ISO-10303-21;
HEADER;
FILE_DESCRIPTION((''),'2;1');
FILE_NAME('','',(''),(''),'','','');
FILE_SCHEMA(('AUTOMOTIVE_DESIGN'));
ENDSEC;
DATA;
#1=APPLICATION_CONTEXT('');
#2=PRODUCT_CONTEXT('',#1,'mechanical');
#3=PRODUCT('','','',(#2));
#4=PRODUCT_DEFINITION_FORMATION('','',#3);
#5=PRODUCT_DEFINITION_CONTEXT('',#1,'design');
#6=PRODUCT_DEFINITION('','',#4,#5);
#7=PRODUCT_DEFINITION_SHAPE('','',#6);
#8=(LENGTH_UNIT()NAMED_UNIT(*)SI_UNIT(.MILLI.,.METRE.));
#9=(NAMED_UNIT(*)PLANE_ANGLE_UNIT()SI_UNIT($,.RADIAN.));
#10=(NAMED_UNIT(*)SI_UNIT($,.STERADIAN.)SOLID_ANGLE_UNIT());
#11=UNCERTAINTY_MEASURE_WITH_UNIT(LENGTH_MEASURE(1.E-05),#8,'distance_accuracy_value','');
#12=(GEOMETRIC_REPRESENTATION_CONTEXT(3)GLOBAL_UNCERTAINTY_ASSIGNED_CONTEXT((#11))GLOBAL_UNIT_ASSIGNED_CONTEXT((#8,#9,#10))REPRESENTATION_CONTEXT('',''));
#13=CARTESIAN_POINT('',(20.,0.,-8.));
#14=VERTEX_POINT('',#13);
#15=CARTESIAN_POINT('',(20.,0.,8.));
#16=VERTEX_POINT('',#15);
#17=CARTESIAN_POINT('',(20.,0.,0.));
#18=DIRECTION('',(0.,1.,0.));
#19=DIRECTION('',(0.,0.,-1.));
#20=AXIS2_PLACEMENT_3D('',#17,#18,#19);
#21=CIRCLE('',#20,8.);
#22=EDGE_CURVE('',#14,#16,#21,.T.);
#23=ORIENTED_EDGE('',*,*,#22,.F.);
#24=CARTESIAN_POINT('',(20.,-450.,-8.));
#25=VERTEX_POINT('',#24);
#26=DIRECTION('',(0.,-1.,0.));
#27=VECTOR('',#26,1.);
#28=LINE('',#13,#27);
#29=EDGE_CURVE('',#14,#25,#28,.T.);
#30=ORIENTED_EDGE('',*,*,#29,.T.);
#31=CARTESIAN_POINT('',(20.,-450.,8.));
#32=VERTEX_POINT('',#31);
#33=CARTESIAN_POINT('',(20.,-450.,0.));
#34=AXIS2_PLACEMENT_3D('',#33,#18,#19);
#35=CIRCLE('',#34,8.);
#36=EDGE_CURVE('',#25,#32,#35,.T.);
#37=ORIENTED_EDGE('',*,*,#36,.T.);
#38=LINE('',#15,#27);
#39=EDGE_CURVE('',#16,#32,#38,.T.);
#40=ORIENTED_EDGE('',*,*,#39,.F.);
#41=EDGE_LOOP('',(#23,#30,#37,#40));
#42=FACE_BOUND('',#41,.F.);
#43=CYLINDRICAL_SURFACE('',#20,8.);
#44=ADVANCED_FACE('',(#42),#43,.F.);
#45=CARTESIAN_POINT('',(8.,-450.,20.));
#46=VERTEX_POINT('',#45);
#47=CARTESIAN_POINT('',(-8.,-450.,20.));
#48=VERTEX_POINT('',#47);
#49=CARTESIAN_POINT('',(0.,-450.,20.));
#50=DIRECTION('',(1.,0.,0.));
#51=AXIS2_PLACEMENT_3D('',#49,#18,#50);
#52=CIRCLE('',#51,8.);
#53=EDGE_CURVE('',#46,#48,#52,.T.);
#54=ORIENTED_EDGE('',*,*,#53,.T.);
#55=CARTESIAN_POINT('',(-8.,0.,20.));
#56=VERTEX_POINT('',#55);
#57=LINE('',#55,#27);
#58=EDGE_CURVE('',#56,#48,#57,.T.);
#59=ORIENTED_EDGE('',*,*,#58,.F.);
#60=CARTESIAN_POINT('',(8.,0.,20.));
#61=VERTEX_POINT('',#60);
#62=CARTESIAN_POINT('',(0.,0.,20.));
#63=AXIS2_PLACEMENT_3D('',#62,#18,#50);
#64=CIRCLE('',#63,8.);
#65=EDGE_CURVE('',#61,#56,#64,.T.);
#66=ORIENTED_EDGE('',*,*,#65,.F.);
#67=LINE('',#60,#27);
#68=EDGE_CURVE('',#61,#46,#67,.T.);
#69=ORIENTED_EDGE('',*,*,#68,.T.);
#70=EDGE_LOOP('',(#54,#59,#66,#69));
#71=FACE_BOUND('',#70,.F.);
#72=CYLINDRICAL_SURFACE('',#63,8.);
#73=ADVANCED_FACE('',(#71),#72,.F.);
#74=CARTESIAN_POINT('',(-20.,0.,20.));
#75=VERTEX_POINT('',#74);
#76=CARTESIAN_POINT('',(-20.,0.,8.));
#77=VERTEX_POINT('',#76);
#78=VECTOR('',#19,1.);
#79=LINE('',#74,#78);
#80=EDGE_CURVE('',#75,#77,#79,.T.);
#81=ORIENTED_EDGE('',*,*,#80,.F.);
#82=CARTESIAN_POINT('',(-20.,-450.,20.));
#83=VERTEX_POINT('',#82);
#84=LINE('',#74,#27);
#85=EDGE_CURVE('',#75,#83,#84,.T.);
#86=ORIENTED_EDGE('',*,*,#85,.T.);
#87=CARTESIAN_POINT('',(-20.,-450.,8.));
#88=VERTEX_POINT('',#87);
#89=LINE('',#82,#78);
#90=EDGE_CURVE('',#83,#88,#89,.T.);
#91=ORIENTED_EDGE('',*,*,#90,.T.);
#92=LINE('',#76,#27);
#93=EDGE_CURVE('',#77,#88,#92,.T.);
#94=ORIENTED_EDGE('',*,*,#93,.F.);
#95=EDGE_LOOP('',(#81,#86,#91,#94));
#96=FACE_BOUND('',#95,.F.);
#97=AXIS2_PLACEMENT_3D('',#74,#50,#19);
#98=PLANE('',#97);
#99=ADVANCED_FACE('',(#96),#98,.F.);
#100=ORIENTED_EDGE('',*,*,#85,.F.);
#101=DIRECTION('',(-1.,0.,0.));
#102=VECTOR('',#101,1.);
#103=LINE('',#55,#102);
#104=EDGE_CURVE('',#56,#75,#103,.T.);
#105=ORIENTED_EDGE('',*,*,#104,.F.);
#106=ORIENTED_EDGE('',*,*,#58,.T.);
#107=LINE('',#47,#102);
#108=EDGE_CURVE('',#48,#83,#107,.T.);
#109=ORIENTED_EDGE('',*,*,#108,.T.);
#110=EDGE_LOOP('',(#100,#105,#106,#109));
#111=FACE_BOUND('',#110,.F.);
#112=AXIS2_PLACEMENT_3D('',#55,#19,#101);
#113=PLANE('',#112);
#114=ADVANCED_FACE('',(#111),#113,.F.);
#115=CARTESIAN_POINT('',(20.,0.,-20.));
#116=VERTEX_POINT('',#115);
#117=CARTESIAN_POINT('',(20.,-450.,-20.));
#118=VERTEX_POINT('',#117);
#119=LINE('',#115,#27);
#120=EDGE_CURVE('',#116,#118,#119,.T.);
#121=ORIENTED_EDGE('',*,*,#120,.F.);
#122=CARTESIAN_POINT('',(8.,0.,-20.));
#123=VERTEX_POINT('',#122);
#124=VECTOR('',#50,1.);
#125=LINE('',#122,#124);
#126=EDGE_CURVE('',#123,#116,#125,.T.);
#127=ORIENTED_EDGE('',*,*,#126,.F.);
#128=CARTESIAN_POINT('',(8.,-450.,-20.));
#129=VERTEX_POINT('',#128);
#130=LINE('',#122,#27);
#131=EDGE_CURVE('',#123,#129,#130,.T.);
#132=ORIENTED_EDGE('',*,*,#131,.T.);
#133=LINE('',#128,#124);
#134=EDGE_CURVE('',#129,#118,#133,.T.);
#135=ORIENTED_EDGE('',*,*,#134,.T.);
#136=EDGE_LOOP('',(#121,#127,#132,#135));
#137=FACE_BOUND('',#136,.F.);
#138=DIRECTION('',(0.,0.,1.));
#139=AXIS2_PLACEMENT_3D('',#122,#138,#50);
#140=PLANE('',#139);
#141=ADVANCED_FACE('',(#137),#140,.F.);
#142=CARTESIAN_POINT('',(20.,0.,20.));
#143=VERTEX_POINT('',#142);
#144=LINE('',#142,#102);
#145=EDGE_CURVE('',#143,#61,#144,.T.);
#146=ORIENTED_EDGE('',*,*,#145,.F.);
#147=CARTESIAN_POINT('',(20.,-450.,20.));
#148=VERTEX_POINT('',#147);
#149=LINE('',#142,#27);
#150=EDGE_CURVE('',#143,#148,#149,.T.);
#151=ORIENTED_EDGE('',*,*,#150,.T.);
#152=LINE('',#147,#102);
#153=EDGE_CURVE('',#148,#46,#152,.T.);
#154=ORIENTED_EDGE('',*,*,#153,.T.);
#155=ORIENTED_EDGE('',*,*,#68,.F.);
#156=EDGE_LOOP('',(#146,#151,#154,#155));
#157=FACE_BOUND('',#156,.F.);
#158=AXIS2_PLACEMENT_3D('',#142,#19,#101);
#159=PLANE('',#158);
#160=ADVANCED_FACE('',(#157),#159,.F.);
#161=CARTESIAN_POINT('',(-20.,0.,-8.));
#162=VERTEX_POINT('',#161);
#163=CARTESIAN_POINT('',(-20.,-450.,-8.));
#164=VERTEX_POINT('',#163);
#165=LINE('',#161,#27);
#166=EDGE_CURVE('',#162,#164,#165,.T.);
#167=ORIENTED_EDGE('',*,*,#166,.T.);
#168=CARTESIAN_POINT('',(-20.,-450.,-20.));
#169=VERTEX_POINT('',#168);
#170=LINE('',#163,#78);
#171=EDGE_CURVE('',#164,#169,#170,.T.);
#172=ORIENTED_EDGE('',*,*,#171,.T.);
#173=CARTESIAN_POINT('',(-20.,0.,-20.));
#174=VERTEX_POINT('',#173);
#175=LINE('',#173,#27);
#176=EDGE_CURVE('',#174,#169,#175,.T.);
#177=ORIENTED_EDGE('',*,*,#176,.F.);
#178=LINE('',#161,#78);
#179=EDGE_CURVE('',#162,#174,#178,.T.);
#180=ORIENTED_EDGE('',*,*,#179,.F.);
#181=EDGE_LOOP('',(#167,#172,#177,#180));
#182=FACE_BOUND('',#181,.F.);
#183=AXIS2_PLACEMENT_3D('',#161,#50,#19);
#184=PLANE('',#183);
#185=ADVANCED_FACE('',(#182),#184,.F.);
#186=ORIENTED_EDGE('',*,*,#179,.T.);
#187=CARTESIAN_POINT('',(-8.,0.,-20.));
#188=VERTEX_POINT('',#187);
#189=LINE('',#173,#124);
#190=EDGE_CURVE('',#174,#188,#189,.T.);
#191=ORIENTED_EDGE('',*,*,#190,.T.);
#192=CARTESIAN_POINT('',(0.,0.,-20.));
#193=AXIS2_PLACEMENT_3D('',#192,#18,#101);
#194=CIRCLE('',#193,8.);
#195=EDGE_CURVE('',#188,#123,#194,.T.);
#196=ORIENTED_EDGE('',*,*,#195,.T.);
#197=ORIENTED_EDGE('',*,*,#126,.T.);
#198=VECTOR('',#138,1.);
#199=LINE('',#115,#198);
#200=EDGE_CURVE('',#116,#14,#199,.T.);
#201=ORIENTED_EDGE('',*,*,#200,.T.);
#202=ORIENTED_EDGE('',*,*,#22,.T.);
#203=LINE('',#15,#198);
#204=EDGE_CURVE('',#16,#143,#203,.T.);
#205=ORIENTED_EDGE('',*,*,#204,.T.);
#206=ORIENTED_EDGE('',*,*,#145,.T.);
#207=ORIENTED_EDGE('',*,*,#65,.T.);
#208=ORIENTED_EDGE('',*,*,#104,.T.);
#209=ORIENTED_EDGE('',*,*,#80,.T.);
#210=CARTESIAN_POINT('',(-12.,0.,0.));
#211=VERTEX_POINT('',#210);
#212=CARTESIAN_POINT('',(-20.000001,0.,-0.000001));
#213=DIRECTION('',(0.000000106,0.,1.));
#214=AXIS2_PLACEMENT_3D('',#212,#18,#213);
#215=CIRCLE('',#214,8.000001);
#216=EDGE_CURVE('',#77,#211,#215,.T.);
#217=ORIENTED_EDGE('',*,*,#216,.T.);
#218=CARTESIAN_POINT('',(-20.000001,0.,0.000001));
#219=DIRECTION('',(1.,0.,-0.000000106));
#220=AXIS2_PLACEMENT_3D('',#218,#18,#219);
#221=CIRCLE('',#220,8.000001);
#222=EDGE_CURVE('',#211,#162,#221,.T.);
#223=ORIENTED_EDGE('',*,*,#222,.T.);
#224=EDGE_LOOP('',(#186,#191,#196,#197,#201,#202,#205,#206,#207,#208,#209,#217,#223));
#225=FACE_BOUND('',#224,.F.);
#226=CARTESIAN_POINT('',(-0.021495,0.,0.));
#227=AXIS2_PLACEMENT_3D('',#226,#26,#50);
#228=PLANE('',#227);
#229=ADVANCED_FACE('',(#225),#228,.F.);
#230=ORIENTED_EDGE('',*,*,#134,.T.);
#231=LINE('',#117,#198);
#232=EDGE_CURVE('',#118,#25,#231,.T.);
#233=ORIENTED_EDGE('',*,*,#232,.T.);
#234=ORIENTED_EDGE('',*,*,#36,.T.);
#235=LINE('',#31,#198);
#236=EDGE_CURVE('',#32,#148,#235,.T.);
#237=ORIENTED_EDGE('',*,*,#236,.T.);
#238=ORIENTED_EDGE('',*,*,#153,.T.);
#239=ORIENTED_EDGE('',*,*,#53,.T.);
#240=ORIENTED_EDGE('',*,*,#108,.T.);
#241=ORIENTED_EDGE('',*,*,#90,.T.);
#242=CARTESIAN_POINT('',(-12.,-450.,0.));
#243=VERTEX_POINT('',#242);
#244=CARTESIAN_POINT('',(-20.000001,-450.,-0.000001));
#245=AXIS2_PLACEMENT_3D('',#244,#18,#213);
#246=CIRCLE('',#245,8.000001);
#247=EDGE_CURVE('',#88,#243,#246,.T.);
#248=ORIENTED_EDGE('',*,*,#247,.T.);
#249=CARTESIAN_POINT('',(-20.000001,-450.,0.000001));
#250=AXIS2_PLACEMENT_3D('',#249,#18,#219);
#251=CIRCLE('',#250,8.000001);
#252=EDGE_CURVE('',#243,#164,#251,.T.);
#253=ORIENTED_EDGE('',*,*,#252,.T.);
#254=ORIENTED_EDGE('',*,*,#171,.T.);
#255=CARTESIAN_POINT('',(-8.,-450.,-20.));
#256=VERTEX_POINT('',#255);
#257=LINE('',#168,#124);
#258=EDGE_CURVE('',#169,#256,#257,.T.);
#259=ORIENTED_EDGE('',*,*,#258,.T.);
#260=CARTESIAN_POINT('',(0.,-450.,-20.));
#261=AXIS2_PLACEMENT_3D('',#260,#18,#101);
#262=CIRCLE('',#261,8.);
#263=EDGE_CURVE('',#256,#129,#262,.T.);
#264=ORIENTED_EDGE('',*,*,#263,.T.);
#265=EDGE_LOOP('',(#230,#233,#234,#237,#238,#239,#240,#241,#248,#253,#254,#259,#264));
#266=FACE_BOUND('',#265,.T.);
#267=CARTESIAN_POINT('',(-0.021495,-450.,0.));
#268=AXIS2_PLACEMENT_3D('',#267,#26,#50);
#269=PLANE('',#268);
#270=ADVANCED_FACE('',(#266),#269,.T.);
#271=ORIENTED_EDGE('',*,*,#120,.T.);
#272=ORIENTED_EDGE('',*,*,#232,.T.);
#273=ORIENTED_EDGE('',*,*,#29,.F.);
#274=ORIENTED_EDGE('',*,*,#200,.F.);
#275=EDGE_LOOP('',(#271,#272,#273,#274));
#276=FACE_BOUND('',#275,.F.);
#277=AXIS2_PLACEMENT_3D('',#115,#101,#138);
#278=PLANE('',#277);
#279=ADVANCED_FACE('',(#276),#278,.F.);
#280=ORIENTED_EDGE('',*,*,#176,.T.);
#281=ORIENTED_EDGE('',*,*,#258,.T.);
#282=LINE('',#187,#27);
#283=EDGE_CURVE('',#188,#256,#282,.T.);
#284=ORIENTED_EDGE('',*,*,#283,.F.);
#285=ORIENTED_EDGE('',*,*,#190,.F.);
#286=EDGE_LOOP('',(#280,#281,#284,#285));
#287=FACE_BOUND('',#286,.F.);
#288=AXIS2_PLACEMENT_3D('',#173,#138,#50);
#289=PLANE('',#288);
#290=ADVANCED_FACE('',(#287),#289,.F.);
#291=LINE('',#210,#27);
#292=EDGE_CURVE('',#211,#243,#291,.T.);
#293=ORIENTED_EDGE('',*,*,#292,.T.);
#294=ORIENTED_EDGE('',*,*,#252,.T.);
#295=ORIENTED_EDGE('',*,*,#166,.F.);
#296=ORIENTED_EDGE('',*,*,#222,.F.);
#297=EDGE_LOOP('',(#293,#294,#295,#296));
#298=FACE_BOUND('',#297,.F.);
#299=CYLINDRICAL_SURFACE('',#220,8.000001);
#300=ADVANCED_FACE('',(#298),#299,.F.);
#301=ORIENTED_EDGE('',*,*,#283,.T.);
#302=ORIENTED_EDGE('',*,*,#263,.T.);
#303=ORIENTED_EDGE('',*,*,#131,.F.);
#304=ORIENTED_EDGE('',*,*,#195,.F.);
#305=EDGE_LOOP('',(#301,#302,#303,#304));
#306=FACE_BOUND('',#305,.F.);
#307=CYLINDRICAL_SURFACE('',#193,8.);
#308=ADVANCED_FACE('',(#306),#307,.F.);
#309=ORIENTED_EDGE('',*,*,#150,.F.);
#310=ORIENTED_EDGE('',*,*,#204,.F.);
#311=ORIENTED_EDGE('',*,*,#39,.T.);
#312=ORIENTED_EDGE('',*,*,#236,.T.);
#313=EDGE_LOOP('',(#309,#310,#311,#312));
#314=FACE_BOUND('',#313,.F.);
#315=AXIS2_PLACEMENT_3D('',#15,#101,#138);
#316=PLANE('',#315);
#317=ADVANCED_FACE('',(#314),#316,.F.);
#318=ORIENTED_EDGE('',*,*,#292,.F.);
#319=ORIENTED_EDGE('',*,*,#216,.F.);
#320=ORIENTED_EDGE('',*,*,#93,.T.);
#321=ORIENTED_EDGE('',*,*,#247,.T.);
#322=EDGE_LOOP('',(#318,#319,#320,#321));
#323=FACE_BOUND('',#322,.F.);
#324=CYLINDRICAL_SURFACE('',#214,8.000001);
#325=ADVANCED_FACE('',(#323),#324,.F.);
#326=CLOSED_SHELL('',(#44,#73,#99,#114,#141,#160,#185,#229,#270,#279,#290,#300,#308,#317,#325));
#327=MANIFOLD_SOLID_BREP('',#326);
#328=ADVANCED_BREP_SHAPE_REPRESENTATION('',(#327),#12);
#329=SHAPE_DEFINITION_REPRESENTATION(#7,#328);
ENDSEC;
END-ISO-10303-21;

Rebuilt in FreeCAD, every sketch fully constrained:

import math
import FreeCAD as App
import Part
import Sketcher

V = App.Vector
Q = App.Units.Quantity

doc = App.newDocument("Part")
body = doc.addObject("PartDesign::Body", "Body")

# Sketch on XZ plane
sketch1 = doc.addObject("Sketcher::SketchObject", "Sketch")
body.addObject(sketch1)
sketch1.AttachmentSupport = (doc.XZ_Plane, [""])
sketch1.MapMode = "FlatFace"
sketch1.addGeometry(Part.LineSegment(V(8, -20, 0), V(20, -20, 0)), False)
sketch1.addGeometry(Part.LineSegment(V(20, -20, 0), V(20, -8, 0)), False)
sketch1.addGeometry(Part.ArcOfCircle(Part.Circle(V(20, 0, 0), V(0, 0, 1), 8), math.radians(90), math.radians(270)), False)
sketch1.addGeometry(Part.LineSegment(V(20, 8, 0), V(20, 20, 0)), False)
sketch1.addGeometry(Part.LineSegment(V(20, 20, 0), V(8, 20, 0)), False)
sketch1.addGeometry(Part.ArcOfCircle(Part.Circle(V(0, 20, 0), V(0, 0, 1), 8), math.radians(180), math.radians(360)), False)
sketch1.addGeometry(Part.LineSegment(V(-8, 20, 0), V(-20, 20, 0)), False)
sketch1.addGeometry(Part.LineSegment(V(-20, 20, 0), V(-20, 8, 0)), False)
sketch1.addGeometry(Part.ArcOfCircle(Part.Circle(V(-20.000001, -0.000001, 0), V(0, 0, 1), 8.000001), math.radians(0.000006), math.radians(89.999994)), False)
sketch1.addGeometry(Part.ArcOfCircle(Part.Circle(V(-20.000001, 0.000001, 0), V(0, 0, 1), 8.000001), math.radians(-89.999994), math.radians(-0.000006)), False)
sketch1.addGeometry(Part.LineSegment(V(-20, -8, 0), V(-20, -20, 0)), False)
sketch1.addGeometry(Part.LineSegment(V(-20, -20, 0), V(-8, -20, 0)), False)
sketch1.addGeometry(Part.ArcOfCircle(Part.Circle(V(0, -20, 0), V(0, 0, 1), 8), math.radians(0), math.radians(180)), False)
sketch1.addConstraint(Sketcher.Constraint("Coincident", 0, 2, 1, 1))
sketch1.addConstraint(Sketcher.Constraint("Coincident", 1, 2, 2, 2))
sketch1.addConstraint(Sketcher.Constraint("Coincident", 2, 1, 3, 1))
sketch1.addConstraint(Sketcher.Constraint("Coincident", 3, 2, 4, 1))
sketch1.addConstraint(Sketcher.Constraint("Coincident", 4, 2, 5, 2))
sketch1.addConstraint(Sketcher.Constraint("Coincident", 5, 1, 6, 1))
sketch1.addConstraint(Sketcher.Constraint("Coincident", 6, 2, 7, 1))
sketch1.addConstraint(Sketcher.Constraint("Coincident", 7, 2, 8, 2))
sketch1.addConstraint(Sketcher.Constraint("Tangent", 8, 1, 9, 2))
sketch1.addConstraint(Sketcher.Constraint("Coincident", 9, 1, 10, 1))
sketch1.addConstraint(Sketcher.Constraint("Coincident", 10, 2, 11, 1))
sketch1.addConstraint(Sketcher.Constraint("Coincident", 11, 2, 12, 2))
sketch1.addConstraint(Sketcher.Constraint("Coincident", 12, 1, 0, 1))
sketch1.addConstraint(Sketcher.Constraint("Horizontal", 0))
sketch1.addConstraint(Sketcher.Constraint("Vertical", 1))
sketch1.addConstraint(Sketcher.Constraint("Vertical", 3))
sketch1.addConstraint(Sketcher.Constraint("Horizontal", 4))
sketch1.addConstraint(Sketcher.Constraint("Horizontal", 6))
sketch1.addConstraint(Sketcher.Constraint("Vertical", 7))
sketch1.addConstraint(Sketcher.Constraint("Vertical", 10))
sketch1.addConstraint(Sketcher.Constraint("Horizontal", 11))
sketch1.addConstraint(Sketcher.Constraint("Equal", 2, 5))
sketch1.addConstraint(Sketcher.Constraint("Equal", 5, 8))
sketch1.addConstraint(Sketcher.Constraint("Equal", 8, 9))
sketch1.addConstraint(Sketcher.Constraint("Equal", 9, 12))
sketch1.addConstraint(Sketcher.Constraint("Symmetric", 2, 3, 8, 3, -1, 1))
sketch1.addConstraint(Sketcher.Constraint("Symmetric", 5, 3, 12, 3, -1, 1))
sketch1.addConstraint(Sketcher.Constraint("Symmetric", 0, 2, 6, 2, -1, 1))
sketch1.addConstraint(Sketcher.Constraint("Symmetric", 3, 2, 10, 2, -1, 1))
sketch1.addConstraint(Sketcher.Constraint("Symmetric", 4, 2, 5, 1, -2))
sketch1.addConstraint(Sketcher.Constraint("Symmetric", 2, 1, 7, 2, -2))
sketch1.addConstraint(Sketcher.Constraint("PointOnObject", 8, 1, -1))
sketch1.addConstraint(Sketcher.Constraint("Horizontal", 12, 3, 0, 2))
sketch1.addConstraint(Sketcher.Constraint("Vertical", 2, 3, 0, 2))
sketch1.addConstraint(Sketcher.Constraint("Equal", 11, 1))
sketch1.addConstraint(Sketcher.Constraint("Radius", 2, Q("8 mm")))
sketch1.addConstraint(Sketcher.Constraint("DistanceX", 0, 1, 0, 2, Q("12 mm")))
pad1 = doc.addObject("PartDesign::Pad", "Pad")
body.addObject(pad1)
pad1.Profile = sketch1
pad1.Length = 450

doc.recompute()
